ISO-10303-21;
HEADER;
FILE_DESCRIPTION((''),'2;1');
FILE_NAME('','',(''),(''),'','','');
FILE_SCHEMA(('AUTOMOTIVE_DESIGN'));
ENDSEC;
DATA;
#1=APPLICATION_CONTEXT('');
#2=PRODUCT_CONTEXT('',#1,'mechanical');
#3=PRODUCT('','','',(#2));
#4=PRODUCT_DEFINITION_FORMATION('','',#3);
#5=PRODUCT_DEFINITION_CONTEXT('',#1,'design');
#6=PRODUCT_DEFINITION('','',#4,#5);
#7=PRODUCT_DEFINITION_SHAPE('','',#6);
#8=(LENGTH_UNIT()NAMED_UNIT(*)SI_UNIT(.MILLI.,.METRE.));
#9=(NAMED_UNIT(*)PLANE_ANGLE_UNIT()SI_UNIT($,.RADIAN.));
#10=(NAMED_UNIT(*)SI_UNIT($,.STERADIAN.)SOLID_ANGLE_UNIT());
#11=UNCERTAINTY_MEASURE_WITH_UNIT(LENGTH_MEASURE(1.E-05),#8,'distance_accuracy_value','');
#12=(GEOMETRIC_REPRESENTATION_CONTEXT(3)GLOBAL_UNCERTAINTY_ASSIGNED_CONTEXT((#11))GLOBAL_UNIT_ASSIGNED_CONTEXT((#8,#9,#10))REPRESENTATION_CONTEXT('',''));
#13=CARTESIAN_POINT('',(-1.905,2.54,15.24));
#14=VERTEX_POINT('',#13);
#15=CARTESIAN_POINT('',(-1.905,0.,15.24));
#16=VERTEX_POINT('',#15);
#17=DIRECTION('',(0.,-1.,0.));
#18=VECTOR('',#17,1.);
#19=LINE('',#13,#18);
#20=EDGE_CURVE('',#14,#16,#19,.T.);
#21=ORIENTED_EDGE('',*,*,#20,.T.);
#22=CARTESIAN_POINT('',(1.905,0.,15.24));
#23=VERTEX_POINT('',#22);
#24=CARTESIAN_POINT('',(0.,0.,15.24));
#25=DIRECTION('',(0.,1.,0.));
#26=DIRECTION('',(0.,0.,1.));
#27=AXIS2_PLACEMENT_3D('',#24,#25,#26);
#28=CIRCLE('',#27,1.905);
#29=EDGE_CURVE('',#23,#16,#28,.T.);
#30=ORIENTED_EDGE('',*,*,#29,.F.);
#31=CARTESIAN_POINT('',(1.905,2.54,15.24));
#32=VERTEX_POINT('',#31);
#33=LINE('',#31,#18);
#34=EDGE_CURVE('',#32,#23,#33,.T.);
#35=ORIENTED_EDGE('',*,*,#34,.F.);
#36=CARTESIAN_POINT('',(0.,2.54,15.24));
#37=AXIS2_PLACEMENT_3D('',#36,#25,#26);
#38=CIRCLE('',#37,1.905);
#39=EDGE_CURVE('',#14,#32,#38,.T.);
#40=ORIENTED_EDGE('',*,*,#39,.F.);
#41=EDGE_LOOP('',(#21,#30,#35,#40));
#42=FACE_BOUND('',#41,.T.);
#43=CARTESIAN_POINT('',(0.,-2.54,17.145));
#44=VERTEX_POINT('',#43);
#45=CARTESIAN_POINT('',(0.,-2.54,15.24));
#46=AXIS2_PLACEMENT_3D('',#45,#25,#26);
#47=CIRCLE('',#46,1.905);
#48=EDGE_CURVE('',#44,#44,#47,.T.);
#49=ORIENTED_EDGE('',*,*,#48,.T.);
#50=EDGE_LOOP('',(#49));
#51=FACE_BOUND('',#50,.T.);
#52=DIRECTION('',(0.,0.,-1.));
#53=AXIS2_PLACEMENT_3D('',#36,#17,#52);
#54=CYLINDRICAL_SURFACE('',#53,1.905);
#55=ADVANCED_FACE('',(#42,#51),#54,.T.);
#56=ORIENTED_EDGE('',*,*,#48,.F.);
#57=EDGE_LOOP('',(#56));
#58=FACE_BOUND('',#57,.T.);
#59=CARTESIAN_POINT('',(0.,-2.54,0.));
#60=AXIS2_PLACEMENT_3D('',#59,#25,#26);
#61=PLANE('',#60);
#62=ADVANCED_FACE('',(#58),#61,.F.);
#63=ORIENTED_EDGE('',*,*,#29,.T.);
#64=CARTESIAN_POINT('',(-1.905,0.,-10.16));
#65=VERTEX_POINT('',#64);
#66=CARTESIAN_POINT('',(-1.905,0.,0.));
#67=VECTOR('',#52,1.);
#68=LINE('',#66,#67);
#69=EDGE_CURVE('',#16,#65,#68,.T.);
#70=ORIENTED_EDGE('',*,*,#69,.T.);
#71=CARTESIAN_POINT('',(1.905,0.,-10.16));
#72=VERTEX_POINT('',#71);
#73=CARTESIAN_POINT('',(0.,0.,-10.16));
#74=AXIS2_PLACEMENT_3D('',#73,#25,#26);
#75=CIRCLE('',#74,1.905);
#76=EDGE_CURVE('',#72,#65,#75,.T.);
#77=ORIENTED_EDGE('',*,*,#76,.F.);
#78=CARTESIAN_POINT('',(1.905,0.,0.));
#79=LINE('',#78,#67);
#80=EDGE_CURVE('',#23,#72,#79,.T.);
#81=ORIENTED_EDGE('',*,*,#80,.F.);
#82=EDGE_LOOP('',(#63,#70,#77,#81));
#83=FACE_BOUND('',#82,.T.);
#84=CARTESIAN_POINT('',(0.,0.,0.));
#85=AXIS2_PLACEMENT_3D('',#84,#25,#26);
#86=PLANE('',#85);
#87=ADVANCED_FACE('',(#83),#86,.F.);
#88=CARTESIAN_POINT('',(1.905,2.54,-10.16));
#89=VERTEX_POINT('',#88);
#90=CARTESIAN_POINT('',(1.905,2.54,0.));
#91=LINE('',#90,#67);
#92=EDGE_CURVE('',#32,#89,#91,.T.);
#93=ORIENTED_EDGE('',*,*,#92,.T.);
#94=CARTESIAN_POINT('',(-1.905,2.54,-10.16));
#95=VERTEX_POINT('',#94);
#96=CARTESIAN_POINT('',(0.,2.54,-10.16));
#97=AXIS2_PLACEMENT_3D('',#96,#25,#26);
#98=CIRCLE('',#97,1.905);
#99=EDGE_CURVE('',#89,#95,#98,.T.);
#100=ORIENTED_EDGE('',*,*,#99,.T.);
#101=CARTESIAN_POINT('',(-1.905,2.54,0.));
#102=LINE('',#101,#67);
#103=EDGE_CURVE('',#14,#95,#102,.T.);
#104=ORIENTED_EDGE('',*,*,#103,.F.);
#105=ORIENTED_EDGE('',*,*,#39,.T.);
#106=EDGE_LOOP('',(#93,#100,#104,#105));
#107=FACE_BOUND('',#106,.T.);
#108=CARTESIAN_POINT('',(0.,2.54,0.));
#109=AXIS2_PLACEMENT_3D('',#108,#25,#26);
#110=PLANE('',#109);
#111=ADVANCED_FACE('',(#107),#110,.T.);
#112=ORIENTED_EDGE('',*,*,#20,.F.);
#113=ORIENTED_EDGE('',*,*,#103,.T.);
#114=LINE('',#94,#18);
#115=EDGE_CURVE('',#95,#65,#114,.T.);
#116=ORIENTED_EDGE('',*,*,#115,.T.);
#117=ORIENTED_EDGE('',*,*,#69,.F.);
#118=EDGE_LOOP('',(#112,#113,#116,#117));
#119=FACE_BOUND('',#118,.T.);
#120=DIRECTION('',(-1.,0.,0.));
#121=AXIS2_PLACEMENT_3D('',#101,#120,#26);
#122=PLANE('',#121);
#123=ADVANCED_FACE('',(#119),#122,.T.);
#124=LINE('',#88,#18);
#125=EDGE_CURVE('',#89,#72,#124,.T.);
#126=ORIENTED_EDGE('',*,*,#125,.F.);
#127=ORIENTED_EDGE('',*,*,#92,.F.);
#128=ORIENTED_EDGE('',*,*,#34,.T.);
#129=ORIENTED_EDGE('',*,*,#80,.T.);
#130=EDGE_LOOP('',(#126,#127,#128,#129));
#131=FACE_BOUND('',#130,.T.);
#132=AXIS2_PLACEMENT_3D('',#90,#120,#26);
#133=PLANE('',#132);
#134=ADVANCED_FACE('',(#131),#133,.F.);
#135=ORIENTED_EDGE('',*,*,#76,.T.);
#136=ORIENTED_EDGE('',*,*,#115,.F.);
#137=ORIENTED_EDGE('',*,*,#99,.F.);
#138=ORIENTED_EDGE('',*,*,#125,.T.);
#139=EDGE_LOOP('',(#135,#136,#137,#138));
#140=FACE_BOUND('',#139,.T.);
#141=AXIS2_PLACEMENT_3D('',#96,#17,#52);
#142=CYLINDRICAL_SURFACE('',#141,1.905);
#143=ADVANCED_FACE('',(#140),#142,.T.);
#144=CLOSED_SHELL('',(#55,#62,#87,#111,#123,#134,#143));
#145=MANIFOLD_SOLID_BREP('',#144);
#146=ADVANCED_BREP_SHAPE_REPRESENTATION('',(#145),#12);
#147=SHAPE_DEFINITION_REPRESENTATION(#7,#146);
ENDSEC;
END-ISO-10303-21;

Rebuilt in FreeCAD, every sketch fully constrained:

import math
import FreeCAD as App
import Part
import Sketcher

V = App.Vector
Q = App.Units.Quantity

doc = App.newDocument("Part")
params = doc.addObject("Spreadsheet::Sheet", "Params")
for row, (alias, value) in enumerate([
    ("sketch1_height", "1 in"),
    ("sketch1_radius", "0.075 in"),
    ("pad1_length", "0.1 in"),
    ("sketch2_diameter", "0.15 in"),
    ("pad2_length", "0.2 in"),
], start=1):
    params.set(f"A{row}", alias)
    params.set(f"B{row}", "=" + value)
    params.setAlias(f"B{row}", alias)

body = doc.addObject("PartDesign::Body", "Body")

# Sketch on XZ plane
sketch1 = body.newObject("Sketcher::SketchObject", "Sketch")
sketch1.AttachmentSupport = (doc.getObject("XZ_Plane"), [""])
sketch1.MapMode = "FlatFace"
sketch1.addGeometry([
    Part.ArcOfCircle(Part.Circle(V(0, -10.16, 0), V(0, 0, 1), 1.905), math.radians(180), math.radians(360)),
    Part.LineSegment(V(-1.905, -10.16, 0), V(-1.905, 15.24, 0)),
    Part.ArcOfCircle(Part.Circle(V(0, 15.24, 0), V(0, 0, 1), 1.905), math.radians(180), math.radians(360)),
    Part.LineSegment(V(1.905, 15.24, 0), V(1.905, -10.16, 0)),
], False)
sketch1.addConstraint([
    Sketcher.Constraint("Tangent", 0, 1, 1, 1),
    Sketcher.Constraint("Tangent", 1, 2, 2, 1),
    Sketcher.Constraint("Tangent", 2, 2, 3, 1),
    Sketcher.Constraint("Tangent", 3, 2, 0, 2),
    Sketcher.Constraint("Vertical", 1),
    Sketcher.Constraint("Vertical", 3),
    Sketcher.Constraint("PointOnObject", 0, 3, -2),
    Sketcher.Constraint("DistanceY", 1, 1, 1, 2, Q("1 in")),
    Sketcher.Constraint("Radius", 0, Q("0.075 in")),
    Sketcher.Constraint("DistanceY", 0, 3, -1, 1, Q("0.4 in")),
])
sketch1.setExpression("Constraints[7]", "Params.sketch1_height")
sketch1.setExpression("Constraints[8]", "Params.sketch1_radius")
pad1 = body.newObject("PartDesign::Pad", "Pad")
pad1.Profile = sketch1
pad1.setExpression("Length", "Params.pad1_length")
pad1.Reversed = True

# Sketch on XZ plane
sketch2 = body.newObject("Sketcher::SketchObject", "Sketch001")
sketch2.AttachmentSupport = (doc.getObject("XZ_Plane"), [""])
sketch2.MapMode = "FlatFace"
sketch2.addGeometry(Part.Circle(V(0, 15.24, 0), V(0, 0, 1), 1.905), False)
sketch2.addConstraint([
    Sketcher.Constraint("PointOnObject", 0, 3, -2),
    Sketcher.Constraint("Diameter", 0, Q("0.15 in")),
    Sketcher.Constraint("DistanceY", -1, 1, 0, 3, Q("0.6 in")),
])
sketch2.setExpression("Constraints[1]", "Params.sketch2_diameter")
pad2 = body.newObject("PartDesign::Pad", "Pad001")
pad2.Profile = sketch2
pad2.setExpression("Length", "Params.pad2_length")
pad2.Midplane = True

doc.recompute()
